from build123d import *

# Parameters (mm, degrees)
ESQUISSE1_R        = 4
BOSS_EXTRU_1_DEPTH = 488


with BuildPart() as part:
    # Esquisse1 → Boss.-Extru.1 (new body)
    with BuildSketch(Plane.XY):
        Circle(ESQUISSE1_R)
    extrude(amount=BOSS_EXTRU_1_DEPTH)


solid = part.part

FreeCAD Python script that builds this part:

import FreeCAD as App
import Part
import Sketcher
from FreeCAD import Vector
Q = App.Units.Quantity

doc = App.newDocument("Part")
params = doc.addObject("Spreadsheet::Sheet", "Params")
for row, (alias, value) in enumerate([
    ("sketch1_diameter", "8 mm"),
    ("pad1_length", "488 mm"),
], start=1):
    params.set(f"A{row}", alias)
    params.set(f"B{row}", "=" + value)
    params.setAlias(f"B{row}", alias)

body = doc.addObject("PartDesign::Body", "Body")

sketch1 = doc.addObject("Sketcher::SketchObject", "Sketch")
body.addObject(sketch1)
sketch1.AttachmentSupport = (doc.XY_Plane, [""])
sketch1.MapMode = "FlatFace"
sketch1.addGeometry(Part.Circle(Vector(0, 0, 0), Vector(0, 0, 1), 4), False)
sketch1.addConstraint([
    Sketcher.Constraint("Coincident", 0, 3, -1, 1),
    Sketcher.Constraint("Diameter", 0, Q("8 mm")),
])
sketch1.setExpression("Constraints[1]", "Params.sketch1_diameter")
pad1 = doc.addObject("PartDesign::Pad", "Pad")
body.addObject(pad1)
pad1.Profile = sketch1
pad1.setExpression("Length", "Params.pad1_length")

doc.recompute()
